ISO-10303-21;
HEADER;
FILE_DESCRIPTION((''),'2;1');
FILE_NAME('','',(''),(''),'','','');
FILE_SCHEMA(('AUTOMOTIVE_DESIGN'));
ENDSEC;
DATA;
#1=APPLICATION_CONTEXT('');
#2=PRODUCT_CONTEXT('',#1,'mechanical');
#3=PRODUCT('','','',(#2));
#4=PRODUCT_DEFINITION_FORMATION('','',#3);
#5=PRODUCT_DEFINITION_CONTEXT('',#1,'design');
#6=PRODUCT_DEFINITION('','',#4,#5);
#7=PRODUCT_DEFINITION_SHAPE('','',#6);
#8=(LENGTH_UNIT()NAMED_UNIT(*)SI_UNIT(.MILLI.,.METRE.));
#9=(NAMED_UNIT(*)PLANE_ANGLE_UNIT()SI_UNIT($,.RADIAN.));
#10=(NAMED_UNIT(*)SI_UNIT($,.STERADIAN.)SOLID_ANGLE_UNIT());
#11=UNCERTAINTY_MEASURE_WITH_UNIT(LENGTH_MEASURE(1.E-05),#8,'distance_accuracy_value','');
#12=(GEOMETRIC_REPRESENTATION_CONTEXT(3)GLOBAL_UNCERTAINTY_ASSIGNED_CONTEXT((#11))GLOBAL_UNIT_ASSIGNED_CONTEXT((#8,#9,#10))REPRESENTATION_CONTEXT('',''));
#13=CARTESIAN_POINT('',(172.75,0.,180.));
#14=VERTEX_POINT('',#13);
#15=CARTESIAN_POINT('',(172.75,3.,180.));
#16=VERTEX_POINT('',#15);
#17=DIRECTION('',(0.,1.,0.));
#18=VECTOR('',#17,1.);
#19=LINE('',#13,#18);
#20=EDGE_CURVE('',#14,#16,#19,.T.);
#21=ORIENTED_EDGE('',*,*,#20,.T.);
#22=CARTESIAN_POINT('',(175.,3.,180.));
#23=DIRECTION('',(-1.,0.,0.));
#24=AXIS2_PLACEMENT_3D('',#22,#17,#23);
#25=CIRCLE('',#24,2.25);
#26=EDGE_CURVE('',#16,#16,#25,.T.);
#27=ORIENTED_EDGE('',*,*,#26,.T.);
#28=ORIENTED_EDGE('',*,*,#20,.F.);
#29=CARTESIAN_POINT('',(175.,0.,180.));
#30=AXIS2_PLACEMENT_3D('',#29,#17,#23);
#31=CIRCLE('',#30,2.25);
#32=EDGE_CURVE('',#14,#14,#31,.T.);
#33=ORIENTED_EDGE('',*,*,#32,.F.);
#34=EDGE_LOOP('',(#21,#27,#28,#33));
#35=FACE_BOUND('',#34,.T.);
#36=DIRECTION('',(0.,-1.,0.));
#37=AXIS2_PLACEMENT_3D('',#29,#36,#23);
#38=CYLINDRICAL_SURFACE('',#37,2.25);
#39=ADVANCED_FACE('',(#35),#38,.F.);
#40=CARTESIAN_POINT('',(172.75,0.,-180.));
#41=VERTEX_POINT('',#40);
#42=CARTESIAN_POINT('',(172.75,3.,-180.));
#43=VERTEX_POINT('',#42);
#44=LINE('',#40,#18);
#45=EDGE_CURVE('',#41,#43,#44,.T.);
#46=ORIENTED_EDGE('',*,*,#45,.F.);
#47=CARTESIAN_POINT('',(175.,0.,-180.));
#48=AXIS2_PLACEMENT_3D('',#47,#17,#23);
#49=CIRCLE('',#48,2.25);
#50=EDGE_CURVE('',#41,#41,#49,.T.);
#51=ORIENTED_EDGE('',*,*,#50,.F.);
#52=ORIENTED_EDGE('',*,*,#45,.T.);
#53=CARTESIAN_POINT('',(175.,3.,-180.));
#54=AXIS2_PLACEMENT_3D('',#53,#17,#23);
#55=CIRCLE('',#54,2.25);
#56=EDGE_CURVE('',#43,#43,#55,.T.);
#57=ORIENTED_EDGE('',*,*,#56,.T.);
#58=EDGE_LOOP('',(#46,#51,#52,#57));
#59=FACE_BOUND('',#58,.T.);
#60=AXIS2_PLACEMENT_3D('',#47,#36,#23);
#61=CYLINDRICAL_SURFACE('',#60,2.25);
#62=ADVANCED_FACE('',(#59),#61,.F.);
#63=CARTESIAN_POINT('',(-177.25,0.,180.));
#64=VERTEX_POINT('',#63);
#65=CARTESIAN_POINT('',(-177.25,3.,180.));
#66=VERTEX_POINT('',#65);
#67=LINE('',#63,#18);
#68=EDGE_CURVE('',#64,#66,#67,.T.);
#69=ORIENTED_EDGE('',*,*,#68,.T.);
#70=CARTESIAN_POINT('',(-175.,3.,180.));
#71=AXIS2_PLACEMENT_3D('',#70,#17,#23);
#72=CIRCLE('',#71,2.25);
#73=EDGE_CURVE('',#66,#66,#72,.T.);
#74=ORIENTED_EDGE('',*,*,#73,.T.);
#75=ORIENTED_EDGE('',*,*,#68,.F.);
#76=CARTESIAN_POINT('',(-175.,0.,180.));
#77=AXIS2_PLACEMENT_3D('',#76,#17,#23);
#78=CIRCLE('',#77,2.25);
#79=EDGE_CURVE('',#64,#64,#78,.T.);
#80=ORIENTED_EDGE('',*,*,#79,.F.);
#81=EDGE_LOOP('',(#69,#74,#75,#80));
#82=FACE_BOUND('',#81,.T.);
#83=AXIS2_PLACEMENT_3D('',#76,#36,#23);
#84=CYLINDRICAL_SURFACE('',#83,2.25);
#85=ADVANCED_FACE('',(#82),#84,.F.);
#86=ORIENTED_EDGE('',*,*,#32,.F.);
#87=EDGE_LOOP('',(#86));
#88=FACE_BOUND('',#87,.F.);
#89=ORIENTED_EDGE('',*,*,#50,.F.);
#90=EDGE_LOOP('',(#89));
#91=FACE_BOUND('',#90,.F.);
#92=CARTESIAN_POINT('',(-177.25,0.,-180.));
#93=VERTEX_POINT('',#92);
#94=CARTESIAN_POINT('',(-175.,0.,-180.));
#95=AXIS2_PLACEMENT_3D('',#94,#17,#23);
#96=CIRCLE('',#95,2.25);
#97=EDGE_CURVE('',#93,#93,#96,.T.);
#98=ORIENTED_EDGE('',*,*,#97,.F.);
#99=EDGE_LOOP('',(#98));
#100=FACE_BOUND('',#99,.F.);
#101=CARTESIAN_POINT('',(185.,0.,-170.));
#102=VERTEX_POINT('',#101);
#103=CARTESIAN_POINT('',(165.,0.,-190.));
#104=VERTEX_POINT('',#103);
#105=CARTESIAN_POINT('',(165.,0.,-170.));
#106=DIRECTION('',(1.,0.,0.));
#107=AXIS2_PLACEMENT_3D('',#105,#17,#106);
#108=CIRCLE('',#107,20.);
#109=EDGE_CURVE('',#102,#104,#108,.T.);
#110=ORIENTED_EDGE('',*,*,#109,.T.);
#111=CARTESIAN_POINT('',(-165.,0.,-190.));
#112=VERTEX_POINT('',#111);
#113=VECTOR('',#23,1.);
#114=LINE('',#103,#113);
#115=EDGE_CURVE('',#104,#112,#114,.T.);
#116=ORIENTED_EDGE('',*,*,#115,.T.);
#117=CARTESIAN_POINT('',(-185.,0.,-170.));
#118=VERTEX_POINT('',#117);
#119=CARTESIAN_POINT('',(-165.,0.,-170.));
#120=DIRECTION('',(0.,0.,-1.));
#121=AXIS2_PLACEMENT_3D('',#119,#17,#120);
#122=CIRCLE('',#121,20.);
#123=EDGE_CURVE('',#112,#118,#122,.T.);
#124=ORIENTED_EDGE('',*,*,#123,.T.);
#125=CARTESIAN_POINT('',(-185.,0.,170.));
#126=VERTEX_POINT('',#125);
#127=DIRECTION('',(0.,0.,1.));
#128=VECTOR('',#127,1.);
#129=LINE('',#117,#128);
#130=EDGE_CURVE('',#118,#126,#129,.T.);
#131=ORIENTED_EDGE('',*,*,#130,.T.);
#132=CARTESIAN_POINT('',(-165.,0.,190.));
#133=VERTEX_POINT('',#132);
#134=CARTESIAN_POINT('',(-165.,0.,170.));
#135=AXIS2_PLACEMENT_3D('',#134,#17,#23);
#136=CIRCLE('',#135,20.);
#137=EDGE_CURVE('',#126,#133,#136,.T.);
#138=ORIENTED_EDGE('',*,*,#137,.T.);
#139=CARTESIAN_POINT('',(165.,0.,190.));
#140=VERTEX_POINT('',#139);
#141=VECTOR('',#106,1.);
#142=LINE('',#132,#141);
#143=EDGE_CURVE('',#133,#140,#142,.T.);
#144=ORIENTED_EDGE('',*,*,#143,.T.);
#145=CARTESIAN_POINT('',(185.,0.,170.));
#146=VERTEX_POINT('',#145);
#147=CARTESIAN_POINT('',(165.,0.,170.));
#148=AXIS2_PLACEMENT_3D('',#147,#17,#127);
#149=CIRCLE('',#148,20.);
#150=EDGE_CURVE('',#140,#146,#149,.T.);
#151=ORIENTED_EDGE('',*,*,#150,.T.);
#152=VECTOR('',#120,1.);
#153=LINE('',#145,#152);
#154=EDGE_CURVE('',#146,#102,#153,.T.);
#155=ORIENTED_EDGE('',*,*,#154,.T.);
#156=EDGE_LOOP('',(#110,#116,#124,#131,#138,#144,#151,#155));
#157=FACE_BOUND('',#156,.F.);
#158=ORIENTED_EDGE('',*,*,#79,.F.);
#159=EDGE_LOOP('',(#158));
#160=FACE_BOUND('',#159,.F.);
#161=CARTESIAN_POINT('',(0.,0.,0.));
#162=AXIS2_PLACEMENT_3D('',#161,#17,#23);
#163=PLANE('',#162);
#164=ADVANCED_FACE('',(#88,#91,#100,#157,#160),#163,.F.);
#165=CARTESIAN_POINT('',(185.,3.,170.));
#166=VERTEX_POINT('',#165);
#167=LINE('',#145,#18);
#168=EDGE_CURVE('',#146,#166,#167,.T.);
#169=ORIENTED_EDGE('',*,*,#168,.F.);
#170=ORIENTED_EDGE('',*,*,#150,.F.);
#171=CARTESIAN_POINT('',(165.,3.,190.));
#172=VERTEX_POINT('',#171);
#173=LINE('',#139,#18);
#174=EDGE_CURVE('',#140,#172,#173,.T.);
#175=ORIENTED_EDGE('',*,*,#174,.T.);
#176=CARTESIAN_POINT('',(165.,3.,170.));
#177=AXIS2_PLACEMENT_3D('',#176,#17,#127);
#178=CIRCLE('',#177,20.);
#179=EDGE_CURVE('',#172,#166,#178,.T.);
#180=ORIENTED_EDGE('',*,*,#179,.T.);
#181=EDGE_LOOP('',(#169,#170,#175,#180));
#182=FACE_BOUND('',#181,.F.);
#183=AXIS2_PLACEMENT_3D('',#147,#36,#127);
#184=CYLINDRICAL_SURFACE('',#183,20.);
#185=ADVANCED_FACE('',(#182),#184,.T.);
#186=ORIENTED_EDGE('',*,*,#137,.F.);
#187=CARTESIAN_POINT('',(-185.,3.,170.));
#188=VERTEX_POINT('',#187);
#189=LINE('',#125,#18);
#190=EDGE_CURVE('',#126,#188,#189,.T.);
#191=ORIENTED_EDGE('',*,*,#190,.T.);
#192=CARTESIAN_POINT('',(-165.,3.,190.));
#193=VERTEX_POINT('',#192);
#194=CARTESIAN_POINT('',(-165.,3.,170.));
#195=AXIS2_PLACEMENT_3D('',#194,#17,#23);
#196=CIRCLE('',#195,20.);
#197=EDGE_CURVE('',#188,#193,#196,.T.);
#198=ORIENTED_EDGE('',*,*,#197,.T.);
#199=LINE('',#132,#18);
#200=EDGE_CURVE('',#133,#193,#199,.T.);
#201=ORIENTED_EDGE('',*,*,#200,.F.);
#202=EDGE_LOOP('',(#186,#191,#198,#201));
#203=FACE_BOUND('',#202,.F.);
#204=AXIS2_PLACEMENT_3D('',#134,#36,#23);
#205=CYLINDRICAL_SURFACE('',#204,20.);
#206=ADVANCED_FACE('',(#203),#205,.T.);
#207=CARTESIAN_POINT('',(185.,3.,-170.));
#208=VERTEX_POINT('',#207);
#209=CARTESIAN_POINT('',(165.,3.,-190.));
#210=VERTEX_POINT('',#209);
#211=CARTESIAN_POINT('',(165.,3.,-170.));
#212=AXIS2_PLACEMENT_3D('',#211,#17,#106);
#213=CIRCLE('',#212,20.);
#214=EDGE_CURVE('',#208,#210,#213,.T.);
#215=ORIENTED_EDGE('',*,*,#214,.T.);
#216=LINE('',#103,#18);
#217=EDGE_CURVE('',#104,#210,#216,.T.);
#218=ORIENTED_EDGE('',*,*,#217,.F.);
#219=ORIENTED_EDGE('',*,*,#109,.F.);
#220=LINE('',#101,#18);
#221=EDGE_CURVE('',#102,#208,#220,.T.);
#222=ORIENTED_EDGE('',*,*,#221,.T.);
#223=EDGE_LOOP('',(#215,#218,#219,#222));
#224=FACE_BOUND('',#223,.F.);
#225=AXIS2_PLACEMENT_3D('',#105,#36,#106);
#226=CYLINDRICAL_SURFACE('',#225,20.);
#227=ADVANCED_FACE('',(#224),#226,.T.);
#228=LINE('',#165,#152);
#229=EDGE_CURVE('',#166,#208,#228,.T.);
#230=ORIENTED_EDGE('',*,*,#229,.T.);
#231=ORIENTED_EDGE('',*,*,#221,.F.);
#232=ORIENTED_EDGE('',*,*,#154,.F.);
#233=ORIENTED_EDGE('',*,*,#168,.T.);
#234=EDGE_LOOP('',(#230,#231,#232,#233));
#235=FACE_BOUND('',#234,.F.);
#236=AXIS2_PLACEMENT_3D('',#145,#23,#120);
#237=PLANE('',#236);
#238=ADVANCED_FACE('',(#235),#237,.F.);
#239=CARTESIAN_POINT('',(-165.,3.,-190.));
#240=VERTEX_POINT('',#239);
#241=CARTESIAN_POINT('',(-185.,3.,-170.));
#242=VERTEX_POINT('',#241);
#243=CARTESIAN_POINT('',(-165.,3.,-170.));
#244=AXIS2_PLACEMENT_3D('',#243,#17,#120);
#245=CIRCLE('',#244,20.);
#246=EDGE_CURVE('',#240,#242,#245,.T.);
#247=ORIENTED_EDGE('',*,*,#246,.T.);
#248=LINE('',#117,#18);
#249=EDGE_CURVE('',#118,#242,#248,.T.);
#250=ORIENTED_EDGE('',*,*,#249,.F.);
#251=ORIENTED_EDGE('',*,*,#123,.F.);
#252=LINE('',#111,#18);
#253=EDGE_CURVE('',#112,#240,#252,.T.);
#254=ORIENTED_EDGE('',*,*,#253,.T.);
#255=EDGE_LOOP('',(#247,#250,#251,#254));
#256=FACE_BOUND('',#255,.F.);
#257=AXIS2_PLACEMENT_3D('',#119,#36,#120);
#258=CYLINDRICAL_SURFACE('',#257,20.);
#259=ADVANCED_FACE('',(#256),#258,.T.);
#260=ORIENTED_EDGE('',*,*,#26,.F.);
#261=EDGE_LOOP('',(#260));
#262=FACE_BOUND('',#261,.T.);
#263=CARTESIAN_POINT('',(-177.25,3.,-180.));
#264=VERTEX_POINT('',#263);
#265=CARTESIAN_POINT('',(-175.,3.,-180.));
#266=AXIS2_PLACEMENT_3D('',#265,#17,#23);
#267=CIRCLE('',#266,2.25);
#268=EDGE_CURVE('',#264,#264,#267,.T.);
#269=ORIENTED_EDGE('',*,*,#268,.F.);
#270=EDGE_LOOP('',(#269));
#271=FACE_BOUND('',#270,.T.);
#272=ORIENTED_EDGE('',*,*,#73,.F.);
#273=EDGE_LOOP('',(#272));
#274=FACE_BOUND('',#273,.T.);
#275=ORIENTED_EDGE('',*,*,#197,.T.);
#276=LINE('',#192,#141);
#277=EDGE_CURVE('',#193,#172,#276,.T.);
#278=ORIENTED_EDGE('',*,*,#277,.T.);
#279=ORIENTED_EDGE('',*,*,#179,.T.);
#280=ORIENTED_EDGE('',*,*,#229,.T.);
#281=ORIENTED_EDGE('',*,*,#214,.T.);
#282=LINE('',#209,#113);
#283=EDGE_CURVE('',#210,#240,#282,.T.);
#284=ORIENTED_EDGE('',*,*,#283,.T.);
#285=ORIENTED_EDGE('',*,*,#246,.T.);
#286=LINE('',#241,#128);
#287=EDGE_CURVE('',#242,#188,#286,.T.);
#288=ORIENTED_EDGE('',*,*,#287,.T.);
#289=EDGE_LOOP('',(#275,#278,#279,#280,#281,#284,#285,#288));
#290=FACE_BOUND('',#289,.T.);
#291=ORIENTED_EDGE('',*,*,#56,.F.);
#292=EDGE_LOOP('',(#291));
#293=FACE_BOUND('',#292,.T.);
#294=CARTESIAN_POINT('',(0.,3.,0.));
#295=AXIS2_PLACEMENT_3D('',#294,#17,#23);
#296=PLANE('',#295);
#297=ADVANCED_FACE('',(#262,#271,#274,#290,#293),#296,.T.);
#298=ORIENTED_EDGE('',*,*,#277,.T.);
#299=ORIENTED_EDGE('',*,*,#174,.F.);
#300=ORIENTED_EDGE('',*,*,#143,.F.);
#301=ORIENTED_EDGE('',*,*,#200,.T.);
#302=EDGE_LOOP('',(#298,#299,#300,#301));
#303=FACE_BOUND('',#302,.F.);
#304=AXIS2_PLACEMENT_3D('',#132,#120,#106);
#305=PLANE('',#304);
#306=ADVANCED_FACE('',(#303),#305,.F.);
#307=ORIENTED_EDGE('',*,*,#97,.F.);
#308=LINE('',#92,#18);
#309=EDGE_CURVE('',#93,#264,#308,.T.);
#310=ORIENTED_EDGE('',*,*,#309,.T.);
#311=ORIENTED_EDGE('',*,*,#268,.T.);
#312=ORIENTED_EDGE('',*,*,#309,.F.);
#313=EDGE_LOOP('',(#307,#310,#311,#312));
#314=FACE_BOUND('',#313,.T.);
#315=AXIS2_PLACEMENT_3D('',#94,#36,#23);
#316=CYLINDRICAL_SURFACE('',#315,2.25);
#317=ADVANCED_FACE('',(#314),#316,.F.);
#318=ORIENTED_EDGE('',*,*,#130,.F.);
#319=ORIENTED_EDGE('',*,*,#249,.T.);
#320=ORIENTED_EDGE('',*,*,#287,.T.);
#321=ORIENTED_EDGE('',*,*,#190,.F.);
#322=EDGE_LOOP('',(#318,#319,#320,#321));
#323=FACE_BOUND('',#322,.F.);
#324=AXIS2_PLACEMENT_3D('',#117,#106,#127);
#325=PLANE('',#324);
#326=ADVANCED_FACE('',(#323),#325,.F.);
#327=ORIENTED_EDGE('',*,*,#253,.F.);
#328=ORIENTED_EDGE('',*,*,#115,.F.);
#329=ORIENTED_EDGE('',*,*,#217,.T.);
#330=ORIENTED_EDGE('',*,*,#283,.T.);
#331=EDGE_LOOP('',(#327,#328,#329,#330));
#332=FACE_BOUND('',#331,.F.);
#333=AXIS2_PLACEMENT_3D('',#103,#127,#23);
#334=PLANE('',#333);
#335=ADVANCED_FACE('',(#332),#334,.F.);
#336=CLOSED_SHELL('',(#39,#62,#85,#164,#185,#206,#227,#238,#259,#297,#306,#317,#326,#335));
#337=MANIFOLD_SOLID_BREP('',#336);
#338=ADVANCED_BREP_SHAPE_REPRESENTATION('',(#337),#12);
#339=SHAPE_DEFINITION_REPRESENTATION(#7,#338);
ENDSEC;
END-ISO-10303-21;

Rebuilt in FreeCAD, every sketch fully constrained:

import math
import FreeCAD as App
import Part
import Sketcher

doc = App.newDocument("Part")
body = doc.addObject("PartDesign::Body", "Body")

sketch1 = body.newObject("Sketcher::SketchObject", "Sketch")
sketch1.AttachmentSupport = (doc.getObject("XZ_Plane"), [""])
sketch1.MapMode = "FlatFace"
sketch1.addGeometry([
    Part.ArcOfCircle(Part.Circle(App.Vector(165, -170, 0), App.Vector(0, 0, 1), 20), math.radians(-90), math.radians(0)),
    Part.LineSegment(App.Vector(165, -190, 0), App.Vector(-165, -190, 0)),
    Part.ArcOfCircle(Part.Circle(App.Vector(-165, -170, 0), App.Vector(0, 0, 1), 20), math.radians(180), math.radians(270)),
    Part.LineSegment(App.Vector(-185, -170, 0), App.Vector(-185, 170, 0)),
    Part.ArcOfCircle(Part.Circle(App.Vector(-165, 170, 0), App.Vector(0, 0, 1), 20), math.radians(90), math.radians(180)),
    Part.LineSegment(App.Vector(-165, 190, 0), App.Vector(165, 190, 0)),
    Part.ArcOfCircle(Part.Circle(App.Vector(165, 170, 0), App.Vector(0, 0, 1), 20), math.radians(0), math.radians(90)),
    Part.LineSegment(App.Vector(185, 170, 0), App.Vector(185, -170, 0)),
    Part.Circle(App.Vector(175, -180, 0), App.Vector(0, 0, 1), 2.2),
    Part.Circle(App.Vector(-175, -180, 0), App.Vector(0, 0, 1), 2.2),
    Part.Circle(App.Vector(175, 180, 0), App.Vector(0, 0, 1), 2.2),
    Part.Circle(App.Vector(-175, 180, 0), App.Vector(0, 0, 1), 2.2),
], False)
sketch1.addConstraint([
    Sketcher.Constraint("Tangent", 0, 1, 1, 1),
    Sketcher.Constraint("Tangent", 1, 2, 2, 2),
    Sketcher.Constraint("Tangent", 2, 1, 3, 1),
    Sketcher.Constraint("Tangent", 3, 2, 4, 2),
    Sketcher.Constraint("Tangent", 4, 1, 5, 1),
    Sketcher.Constraint("Tangent", 5, 2, 6, 2),
    Sketcher.Constraint("Tangent", 6, 1, 7, 1),
    Sketcher.Constraint("Tangent", 7, 2, 0, 2),
    Sketcher.Constraint("Horizontal", 1),
    Sketcher.Constraint("Vertical", 3),
    Sketcher.Constraint("Horizontal", 5),
    Sketcher.Constraint("Vertical", 7),
    Sketcher.Constraint("Equal", 0, 2),
    Sketcher.Constraint("Equal", 2, 4),
    Sketcher.Constraint("Equal", 4, 6),
    Sketcher.Constraint("Equal", 8, 9),
    Sketcher.Constraint("Equal", 9, 10),
    Sketcher.Constraint("Equal", 10, 11),
    Sketcher.Constraint("Symmetric", 0, 3, 4, 3, -1, 1),
    Sketcher.Constraint("Symmetric", 9, 3, 10, 3, -1, 1),
    Sketcher.Constraint("Symmetric", 8, 3, 11, 3, -1, 1),
    Sketcher.Constraint("Symmetric", 8, 3, 9, 3, -2),
    Sketcher.Constraint("Radius", 0, 20.0),
    Sketcher.Constraint("Diameter", 8, 4.5),
    Sketcher.Constraint("DistanceX", 0, 3, 8, 3, 10.0),
    Sketcher.Constraint("DistanceY", 8, 3, 0, 3, 10.0),
    Sketcher.Constraint("DistanceX", 1, 2, 1, 1, 330.0),
    Sketcher.Constraint("DistanceY", 3, 1, 3, 2, 340.0),
])
pad1 = body.newObject("PartDesign::Pad", "Pad")
pad1.Profile = sketch1
pad1.Length = 3
pad1.Reversed = True

doc.recompute()
